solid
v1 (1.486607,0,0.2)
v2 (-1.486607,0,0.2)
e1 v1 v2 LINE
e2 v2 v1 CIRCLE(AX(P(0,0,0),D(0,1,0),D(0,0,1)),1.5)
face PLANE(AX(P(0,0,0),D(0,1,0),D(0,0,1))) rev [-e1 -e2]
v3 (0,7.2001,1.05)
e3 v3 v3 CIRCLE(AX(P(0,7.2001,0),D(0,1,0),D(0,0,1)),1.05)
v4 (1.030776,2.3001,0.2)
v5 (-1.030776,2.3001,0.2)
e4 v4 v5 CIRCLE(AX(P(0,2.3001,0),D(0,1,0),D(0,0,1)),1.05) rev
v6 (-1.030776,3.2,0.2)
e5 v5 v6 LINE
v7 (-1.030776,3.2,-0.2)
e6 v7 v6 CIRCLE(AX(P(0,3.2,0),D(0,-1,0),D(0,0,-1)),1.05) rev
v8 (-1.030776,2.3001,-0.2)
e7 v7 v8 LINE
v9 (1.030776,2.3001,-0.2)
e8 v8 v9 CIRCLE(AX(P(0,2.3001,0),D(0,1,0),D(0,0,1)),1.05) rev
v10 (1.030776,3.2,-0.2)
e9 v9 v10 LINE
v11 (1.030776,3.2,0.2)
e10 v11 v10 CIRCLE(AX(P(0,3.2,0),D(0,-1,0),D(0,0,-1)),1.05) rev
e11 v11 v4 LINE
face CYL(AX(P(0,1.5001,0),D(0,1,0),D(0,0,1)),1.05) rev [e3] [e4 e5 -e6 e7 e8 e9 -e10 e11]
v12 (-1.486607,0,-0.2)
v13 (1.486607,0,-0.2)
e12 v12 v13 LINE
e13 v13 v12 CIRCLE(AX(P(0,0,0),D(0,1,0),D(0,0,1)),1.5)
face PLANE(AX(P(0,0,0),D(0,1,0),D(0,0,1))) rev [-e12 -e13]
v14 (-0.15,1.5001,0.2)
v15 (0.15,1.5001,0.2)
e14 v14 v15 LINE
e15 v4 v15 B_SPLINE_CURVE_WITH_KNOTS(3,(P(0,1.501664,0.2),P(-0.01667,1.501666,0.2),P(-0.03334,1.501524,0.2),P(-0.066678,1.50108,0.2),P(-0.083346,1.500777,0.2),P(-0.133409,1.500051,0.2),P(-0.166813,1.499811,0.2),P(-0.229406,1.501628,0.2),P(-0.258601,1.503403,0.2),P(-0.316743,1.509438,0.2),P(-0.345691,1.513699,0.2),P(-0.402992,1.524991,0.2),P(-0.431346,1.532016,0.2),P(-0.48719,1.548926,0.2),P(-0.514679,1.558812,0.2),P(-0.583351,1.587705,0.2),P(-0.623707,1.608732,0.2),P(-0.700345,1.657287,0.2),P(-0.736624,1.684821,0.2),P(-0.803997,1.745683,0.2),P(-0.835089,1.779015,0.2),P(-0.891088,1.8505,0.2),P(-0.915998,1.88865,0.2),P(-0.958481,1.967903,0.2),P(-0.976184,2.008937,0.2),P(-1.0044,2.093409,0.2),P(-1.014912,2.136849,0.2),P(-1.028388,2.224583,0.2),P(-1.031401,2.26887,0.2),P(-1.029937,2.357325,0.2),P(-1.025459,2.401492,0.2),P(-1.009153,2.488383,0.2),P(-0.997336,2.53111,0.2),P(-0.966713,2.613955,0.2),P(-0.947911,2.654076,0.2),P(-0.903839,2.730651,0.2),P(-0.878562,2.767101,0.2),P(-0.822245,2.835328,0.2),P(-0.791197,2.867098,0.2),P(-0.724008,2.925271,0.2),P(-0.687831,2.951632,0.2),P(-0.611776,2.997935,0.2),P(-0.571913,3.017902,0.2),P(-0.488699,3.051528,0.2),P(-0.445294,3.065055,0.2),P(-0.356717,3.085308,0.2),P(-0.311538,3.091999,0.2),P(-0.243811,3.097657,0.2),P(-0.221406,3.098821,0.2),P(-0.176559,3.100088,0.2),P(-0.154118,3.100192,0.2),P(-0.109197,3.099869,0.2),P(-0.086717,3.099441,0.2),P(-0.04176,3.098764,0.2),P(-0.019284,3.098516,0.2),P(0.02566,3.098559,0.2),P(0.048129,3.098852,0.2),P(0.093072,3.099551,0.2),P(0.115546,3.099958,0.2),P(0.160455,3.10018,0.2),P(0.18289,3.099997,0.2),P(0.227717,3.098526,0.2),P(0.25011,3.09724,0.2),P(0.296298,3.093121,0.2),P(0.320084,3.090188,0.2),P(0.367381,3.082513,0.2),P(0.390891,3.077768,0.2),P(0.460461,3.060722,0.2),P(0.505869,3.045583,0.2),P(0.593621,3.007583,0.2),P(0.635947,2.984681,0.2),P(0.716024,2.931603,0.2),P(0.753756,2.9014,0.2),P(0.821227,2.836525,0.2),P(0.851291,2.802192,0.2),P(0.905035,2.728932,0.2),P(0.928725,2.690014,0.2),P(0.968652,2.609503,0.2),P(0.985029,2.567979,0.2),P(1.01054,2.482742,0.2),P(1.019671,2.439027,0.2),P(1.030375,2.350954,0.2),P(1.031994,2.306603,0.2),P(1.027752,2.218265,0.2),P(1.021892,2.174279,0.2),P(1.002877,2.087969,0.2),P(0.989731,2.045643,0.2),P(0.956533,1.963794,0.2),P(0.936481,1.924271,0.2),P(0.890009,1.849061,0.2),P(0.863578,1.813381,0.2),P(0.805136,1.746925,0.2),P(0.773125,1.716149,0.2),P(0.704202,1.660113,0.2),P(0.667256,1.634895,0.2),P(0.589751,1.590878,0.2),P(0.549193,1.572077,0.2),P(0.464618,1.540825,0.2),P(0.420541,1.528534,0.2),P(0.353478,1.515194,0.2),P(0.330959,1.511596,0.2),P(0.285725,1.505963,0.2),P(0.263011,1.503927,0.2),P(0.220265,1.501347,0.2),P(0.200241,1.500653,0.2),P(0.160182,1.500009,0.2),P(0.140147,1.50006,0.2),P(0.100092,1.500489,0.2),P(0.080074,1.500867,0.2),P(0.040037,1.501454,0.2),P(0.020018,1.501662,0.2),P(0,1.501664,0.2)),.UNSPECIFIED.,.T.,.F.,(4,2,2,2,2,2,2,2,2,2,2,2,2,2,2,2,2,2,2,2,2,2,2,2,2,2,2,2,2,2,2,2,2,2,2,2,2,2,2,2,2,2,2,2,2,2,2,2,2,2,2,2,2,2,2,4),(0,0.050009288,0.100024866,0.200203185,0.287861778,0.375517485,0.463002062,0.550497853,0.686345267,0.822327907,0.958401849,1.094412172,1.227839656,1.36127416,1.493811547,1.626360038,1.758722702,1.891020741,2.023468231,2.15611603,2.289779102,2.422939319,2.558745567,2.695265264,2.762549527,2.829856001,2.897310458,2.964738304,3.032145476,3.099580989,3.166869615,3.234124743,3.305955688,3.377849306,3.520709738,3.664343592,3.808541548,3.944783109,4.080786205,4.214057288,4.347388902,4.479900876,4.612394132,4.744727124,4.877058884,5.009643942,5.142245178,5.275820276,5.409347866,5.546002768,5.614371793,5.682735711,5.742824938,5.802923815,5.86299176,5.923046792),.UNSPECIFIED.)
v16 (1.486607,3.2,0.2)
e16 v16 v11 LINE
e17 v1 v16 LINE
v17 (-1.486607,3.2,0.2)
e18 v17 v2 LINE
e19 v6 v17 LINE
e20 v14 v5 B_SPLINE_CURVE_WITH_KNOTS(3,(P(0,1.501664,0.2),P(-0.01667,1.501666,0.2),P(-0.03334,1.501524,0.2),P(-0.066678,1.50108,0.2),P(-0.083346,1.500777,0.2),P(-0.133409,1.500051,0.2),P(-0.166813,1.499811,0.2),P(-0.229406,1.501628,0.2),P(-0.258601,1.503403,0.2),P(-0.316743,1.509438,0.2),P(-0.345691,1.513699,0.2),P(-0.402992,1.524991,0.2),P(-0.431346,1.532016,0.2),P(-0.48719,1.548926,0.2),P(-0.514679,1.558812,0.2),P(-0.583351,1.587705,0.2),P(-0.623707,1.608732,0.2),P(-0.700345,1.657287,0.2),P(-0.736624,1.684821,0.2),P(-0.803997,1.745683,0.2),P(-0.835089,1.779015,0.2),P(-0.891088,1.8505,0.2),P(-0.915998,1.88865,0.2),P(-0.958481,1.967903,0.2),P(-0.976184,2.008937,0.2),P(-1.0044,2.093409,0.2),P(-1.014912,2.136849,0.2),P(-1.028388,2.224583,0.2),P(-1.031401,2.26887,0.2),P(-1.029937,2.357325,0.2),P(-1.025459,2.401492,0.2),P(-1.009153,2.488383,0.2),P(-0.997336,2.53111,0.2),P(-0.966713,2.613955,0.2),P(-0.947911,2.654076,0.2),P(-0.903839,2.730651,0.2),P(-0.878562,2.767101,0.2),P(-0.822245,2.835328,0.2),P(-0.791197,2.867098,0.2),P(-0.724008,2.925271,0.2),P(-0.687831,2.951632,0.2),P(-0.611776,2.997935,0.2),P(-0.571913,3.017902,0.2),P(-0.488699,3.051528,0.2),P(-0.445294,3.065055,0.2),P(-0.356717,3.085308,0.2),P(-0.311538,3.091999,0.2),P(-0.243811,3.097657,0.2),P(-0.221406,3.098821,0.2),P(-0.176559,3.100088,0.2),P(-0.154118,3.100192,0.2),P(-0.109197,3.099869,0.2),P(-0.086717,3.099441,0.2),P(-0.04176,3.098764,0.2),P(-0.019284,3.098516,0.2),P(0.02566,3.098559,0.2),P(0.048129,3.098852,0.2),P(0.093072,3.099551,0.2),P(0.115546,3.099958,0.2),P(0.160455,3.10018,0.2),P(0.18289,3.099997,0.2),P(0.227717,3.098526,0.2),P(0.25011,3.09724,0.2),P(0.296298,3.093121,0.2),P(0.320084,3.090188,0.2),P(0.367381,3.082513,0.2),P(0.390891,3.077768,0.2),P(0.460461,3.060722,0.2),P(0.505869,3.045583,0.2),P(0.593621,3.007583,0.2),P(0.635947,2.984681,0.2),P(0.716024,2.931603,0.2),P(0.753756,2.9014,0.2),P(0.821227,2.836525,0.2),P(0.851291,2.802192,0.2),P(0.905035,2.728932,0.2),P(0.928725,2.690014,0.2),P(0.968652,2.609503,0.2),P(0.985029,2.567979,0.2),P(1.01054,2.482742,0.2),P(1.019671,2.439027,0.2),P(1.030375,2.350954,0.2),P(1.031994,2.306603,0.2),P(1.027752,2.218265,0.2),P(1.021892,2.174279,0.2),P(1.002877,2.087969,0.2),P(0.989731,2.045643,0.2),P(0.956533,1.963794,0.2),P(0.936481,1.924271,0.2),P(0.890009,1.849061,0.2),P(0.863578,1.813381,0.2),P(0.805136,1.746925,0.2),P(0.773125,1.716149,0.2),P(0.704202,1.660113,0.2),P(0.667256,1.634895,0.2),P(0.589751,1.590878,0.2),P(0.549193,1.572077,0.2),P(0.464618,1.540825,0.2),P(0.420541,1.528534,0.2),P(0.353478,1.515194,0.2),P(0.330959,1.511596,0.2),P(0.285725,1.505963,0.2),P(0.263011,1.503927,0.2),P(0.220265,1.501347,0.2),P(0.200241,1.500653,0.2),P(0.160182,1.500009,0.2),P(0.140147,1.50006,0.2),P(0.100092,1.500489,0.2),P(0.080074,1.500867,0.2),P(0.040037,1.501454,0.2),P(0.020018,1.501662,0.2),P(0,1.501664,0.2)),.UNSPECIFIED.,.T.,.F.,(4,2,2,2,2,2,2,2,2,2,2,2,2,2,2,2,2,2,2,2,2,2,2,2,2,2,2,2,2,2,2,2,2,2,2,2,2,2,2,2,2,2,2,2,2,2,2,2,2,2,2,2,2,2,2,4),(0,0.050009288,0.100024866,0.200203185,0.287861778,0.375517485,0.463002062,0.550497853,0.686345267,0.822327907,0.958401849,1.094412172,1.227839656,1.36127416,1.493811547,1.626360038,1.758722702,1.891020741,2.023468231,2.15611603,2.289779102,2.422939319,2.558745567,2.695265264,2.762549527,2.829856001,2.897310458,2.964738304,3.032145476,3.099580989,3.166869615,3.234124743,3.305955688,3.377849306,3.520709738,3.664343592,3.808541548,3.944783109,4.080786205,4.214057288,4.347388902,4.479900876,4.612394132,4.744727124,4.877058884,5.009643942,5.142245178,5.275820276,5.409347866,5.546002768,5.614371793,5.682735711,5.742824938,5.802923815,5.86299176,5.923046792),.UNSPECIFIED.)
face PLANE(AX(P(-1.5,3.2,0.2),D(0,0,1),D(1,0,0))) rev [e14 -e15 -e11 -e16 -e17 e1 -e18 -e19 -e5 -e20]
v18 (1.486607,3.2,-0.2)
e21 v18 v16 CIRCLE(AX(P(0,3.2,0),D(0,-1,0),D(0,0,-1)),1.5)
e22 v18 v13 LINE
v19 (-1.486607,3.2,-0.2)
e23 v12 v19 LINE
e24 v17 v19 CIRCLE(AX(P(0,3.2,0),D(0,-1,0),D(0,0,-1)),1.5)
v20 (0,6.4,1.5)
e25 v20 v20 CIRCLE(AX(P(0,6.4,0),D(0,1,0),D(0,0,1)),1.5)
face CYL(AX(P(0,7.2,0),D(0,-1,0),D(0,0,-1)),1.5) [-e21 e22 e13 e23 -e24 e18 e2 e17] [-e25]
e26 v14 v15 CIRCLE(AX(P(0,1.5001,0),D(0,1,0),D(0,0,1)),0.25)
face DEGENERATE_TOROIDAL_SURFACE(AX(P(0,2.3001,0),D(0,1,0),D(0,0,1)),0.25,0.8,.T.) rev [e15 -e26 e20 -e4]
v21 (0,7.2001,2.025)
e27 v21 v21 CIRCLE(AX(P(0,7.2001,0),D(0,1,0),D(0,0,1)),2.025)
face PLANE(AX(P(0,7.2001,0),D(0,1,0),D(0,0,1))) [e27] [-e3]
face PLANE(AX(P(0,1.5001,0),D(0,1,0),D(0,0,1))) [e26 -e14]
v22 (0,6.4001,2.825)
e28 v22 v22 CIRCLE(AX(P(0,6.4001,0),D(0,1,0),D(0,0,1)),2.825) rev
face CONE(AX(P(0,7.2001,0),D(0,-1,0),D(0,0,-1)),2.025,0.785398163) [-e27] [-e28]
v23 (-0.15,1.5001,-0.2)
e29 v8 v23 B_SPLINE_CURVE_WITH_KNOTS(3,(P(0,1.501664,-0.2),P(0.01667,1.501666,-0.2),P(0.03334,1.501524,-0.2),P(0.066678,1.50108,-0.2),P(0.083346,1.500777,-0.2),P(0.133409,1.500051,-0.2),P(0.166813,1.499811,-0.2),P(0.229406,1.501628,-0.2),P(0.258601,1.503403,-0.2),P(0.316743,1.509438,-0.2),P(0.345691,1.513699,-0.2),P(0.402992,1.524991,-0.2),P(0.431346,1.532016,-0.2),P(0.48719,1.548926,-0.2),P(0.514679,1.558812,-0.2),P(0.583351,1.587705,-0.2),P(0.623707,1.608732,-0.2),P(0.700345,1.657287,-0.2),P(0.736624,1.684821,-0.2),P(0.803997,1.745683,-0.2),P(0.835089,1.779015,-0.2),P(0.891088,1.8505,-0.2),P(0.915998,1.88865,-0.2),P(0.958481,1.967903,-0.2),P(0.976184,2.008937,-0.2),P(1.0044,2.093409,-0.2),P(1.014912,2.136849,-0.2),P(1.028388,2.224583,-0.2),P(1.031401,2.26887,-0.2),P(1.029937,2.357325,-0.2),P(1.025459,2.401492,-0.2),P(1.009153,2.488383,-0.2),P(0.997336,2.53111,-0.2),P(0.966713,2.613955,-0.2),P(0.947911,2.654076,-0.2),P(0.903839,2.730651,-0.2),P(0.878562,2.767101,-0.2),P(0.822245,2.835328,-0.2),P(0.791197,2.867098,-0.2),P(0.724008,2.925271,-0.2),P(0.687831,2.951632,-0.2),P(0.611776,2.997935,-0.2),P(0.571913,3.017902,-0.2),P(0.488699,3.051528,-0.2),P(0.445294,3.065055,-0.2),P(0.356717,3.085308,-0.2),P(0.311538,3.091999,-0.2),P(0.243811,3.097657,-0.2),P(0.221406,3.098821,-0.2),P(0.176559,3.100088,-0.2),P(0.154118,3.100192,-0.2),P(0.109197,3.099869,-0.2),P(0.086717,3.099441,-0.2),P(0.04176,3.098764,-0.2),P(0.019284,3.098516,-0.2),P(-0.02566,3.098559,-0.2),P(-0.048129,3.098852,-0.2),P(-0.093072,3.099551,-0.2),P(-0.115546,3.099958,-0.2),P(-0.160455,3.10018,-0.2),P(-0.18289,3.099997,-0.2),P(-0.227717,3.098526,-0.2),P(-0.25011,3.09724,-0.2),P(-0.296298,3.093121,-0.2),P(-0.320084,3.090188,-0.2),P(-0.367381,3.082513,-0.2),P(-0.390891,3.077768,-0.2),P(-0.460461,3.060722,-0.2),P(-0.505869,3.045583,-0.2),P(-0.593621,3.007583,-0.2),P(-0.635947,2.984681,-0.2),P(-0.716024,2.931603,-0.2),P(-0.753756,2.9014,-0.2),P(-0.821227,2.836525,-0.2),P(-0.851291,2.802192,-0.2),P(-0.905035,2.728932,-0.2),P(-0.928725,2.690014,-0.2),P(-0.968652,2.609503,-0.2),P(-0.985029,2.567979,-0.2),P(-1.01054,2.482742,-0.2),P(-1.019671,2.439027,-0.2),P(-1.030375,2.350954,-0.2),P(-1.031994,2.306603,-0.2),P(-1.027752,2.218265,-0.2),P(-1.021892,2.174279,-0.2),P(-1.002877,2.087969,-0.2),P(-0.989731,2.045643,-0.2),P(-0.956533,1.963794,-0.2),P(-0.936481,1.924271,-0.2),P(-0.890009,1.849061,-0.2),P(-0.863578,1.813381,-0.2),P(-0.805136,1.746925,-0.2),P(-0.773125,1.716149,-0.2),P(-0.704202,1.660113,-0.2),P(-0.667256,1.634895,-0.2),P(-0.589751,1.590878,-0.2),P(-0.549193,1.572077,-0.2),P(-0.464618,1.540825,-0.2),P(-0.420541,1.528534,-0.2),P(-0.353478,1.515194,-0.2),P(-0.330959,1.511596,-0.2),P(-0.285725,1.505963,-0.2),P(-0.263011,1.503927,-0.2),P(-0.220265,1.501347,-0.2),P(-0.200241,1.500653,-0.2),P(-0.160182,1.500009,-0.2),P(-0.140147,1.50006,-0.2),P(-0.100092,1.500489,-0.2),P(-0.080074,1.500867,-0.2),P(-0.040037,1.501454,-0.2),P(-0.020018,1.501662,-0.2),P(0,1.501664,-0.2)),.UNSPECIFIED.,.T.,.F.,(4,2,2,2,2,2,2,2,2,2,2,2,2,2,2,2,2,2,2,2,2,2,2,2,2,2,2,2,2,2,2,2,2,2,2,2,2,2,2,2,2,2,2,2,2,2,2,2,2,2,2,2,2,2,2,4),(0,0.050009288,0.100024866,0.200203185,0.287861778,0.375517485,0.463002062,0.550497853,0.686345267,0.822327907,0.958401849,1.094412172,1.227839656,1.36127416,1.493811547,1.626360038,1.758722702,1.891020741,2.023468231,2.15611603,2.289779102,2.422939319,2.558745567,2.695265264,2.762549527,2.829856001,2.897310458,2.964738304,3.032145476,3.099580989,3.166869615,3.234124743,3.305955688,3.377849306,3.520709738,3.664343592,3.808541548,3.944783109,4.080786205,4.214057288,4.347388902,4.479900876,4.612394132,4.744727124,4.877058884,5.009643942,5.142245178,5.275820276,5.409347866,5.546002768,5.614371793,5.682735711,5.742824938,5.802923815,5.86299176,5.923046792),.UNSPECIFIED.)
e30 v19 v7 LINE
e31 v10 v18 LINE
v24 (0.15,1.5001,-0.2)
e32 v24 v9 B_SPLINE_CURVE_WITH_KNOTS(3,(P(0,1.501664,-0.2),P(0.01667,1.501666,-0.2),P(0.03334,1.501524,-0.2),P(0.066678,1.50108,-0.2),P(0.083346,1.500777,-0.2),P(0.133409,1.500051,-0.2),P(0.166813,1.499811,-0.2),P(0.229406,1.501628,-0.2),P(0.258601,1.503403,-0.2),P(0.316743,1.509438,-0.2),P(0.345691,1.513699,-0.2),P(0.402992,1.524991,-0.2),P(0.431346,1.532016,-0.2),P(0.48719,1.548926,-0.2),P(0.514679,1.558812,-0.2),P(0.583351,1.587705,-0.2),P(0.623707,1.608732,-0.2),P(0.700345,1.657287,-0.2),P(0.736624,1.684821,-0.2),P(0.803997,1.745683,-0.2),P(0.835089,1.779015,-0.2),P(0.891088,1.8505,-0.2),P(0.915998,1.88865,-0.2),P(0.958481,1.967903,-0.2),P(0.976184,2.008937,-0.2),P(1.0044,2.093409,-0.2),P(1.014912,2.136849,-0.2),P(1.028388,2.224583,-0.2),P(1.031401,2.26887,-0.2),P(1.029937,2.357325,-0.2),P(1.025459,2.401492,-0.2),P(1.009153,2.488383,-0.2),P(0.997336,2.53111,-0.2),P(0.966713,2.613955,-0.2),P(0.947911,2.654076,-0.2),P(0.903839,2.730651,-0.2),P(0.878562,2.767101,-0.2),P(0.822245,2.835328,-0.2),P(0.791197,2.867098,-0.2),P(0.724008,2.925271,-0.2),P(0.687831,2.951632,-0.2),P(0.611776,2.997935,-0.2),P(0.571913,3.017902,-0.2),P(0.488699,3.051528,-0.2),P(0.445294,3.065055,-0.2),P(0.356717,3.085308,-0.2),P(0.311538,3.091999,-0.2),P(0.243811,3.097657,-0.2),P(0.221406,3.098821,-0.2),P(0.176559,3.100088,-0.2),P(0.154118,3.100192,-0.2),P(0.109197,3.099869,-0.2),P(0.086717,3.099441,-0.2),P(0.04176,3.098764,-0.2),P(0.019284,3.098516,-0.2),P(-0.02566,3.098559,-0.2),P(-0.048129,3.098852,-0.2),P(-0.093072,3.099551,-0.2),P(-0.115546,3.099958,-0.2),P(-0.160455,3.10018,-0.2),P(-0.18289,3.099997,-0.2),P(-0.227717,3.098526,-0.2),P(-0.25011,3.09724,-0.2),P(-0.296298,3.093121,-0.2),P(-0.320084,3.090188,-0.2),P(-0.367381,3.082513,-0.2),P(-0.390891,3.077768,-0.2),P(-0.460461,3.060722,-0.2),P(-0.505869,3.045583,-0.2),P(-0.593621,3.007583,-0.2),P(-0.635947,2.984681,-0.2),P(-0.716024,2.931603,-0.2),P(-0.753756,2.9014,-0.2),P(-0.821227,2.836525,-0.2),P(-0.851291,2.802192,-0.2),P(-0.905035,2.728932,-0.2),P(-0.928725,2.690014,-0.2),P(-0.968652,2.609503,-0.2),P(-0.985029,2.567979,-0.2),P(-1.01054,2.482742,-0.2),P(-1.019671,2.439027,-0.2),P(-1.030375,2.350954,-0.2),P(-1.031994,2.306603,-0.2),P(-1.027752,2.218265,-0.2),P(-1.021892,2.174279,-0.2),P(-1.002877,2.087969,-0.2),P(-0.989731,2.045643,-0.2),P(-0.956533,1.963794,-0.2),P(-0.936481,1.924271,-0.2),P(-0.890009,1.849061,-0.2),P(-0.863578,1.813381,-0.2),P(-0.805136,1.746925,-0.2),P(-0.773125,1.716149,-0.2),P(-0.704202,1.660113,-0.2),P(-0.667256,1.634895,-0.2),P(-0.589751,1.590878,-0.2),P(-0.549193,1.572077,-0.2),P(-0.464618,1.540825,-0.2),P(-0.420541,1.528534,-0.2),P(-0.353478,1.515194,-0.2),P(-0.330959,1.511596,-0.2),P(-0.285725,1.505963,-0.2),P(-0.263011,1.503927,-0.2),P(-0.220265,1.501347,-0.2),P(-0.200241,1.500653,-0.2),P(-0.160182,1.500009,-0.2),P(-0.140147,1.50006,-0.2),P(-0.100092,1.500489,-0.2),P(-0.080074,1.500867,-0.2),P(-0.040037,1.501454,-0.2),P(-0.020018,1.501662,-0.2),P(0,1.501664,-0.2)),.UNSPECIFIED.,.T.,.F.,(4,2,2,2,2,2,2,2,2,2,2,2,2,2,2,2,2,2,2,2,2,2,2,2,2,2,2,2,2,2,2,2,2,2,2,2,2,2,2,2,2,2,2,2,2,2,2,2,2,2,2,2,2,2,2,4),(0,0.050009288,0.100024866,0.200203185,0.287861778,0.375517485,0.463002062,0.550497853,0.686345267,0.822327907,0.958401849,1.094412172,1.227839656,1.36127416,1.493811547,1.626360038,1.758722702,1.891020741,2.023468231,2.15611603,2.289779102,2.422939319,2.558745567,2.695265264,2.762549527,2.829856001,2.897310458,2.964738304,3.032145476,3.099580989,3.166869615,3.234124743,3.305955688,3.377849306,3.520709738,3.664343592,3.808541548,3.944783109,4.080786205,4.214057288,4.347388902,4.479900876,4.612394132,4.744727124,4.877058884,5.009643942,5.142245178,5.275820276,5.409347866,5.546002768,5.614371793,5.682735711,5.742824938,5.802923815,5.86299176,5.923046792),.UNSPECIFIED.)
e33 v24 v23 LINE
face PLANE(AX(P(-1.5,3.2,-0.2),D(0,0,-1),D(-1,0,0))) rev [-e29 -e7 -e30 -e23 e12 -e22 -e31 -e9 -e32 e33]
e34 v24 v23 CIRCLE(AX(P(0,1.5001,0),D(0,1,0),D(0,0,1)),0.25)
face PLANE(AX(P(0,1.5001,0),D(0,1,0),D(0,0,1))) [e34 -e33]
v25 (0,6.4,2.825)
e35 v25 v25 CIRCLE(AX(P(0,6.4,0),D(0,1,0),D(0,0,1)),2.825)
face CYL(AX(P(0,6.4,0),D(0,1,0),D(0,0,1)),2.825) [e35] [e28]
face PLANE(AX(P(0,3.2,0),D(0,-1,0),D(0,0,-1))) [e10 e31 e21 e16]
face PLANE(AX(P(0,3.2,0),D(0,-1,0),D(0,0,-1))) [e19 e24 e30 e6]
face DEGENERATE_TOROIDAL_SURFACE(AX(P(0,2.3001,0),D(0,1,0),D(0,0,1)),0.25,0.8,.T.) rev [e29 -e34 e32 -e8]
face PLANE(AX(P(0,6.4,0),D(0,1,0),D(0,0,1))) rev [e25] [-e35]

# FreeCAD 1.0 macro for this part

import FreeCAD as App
import Part
import Sketcher

V = App.Vector


def edges_at(feature, points):
    """Names of the edges that pass closest to the given points."""
    edges = feature.Shape.Edges
    near = lambda p: min(range(len(edges)), key=lambda i: edges[i].distToShape(Part.Vertex(*p))[0])
    return sorted({f"Edge{near(p) + 1}" for p in points})


def add_polygon(sketch, points):
    """Adds a closed chain of lines whose ends are joined by coincident constraints."""
    first, n = sketch.GeometryCount, len(points)
    for a, b in zip(points, points[1:] + points[:1]):
        sketch.addGeometry(Part.LineSegment(App.Vector(*a, 0), App.Vector(*b, 0)), False)
    for i in range(n):
        sketch.addConstraint(Sketcher.Constraint("Coincident", first + i, 2, first + (i + 1) % n, 1))

doc = App.newDocument("Part")
body = doc.addObject("PartDesign::Body", "Body")

# Sketch on XZ plane
sketch1 = body.newObject("Sketcher::SketchObject", "Sketch")
sketch1.AttachmentSupport = (doc.getObject("XZ_Plane"), [""])
sketch1.MapMode = "FlatFace"
sketch1.addGeometry(Part.Circle(V(0, 0, 0), V(0, 0, 1), 1.5), False)
sketch1.addConstraint([
    Sketcher.Constraint("Coincident", 0, 3, -1, 1),
    Sketcher.Constraint("Diameter", 0, 3.0),
])
pad1 = body.newObject("PartDesign::Pad", "Pad")
pad1.Profile = sketch1
pad1.Length = 7.2
pad1.Reversed = True

# Sketch on XZ plane
sketch2 = body.newObject("Sketcher::SketchObject", "Sketch001")
sketch2.AttachmentSupport = (doc.getObject("XZ_Plane"), [""])
sketch2.MapMode = "FlatFace"
sketch2.AttachmentOffset = App.Placement(V(0, 0, -7.2), App.Rotation())
sketch2.addGeometry(Part.Circle(V(0, 0, 0), V(0, 0, 1), 2.8), False)
sketch2.addConstraint([
    Sketcher.Constraint("Coincident", 0, 3, -1, 1),
    Sketcher.Constraint("Diameter", 0, 5.65),
])
pad2 = body.newObject("PartDesign::Pad", "Pad001")
pad2.Profile = sketch2
pad2.Type = "TwoLengths"
pad2.Length = 0.0001
pad2.Length2 = 0.8
pad2.Reversed = True
doc.recompute()

chamfer = body.newObject("PartDesign::Chamfer", "Chamfer")
chamfer.Base = (pad2, edges_at(pad2, [(0, 7.2, -2.825)]))
chamfer.Size = 0.8

# Sketch on XZ plane
sketch3 = body.newObject("Sketcher::SketchObject", "Sketch002")
sketch3.AttachmentSupport = (doc.getObject("XZ_Plane"), [""])
sketch3.MapMode = "FlatFace"
sketch3.AttachmentOffset = App.Placement(V(0, 0, -7.2001), App.Rotation())
sketch3.addGeometry(Part.Circle(V(0, 0, 0), V(0, 0, 1), 1.1), False)
sketch3.addConstraint([
    Sketcher.Constraint("Coincident", 0, 3, -1, 1),
    Sketcher.Constraint("Diameter", 0, 2.1),
])
pocket1 = body.newObject("PartDesign::Pocket", "Pocket")
pocket1.Profile = sketch3
pocket1.Length = 5.7
pocket1.Reversed = True
doc.recompute()

fillet = body.newObject("PartDesign::Fillet", "Fillet")
fillet.Base = (pocket1, edges_at(pocket1, [(0, 1.5, -1.05)]))
fillet.Radius = 0.8

# Sketch on XZ plane
sketch4 = body.newObject("Sketcher::SketchObject", "Sketch003")
sketch4.AttachmentSupport = (doc.getObject("XZ_Plane"), [""])
sketch4.MapMode = "FlatFace"
add_polygon(sketch4, [(1.5, -0.2), (1.5, 0.2), (-1.5, 0.2), (-1.5, -0.2)])  # lines 0-3
sketch4.addConstraint([
    Sketcher.Constraint("Vertical", 0),
    Sketcher.Constraint("Horizontal", 1),
    Sketcher.Constraint("Vertical", 2),
    Sketcher.Constraint("Horizontal", 3),
    Sketcher.Constraint("Symmetric", 0, 2, 2, 2, -1, 1),
    Sketcher.Constraint("DistanceX", 1, 2, 1, 1, 3.0),
    Sketcher.Constraint("DistanceY", 0, 1, 0, 2, 0.4),
])
pocket2 = body.newObject("PartDesign::Pocket", "Pocket001")
pocket2.Profile = sketch4
pocket2.Length = 3.2

doc.recompute()
